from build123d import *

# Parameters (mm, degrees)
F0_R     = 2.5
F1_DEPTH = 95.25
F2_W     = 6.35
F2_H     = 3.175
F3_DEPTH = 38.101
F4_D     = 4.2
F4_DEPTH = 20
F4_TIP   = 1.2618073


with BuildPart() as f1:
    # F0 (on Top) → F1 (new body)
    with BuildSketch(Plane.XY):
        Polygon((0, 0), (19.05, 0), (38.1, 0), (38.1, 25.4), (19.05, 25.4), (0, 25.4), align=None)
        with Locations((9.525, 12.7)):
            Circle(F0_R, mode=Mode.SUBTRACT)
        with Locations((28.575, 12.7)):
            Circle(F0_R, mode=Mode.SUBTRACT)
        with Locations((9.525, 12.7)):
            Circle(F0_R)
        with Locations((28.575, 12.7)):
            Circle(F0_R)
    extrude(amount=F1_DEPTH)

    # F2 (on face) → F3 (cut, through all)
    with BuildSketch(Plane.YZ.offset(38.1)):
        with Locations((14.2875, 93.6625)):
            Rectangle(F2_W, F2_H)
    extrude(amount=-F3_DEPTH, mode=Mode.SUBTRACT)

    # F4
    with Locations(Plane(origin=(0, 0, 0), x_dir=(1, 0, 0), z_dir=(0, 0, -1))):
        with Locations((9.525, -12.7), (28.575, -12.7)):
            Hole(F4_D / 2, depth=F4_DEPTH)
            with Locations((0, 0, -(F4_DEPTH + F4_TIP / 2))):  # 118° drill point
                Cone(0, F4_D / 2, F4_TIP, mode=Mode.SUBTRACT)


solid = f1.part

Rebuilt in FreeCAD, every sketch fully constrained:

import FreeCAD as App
import Part
import Sketcher
Q = App.Units.Quantity

doc = App.newDocument("Part")
body = doc.addObject("PartDesign::Body", "Body")

sketch1 = body.newObject("Sketcher::SketchObject", "Sketch")
sketch1.AttachmentSupport = (doc.getObject("XY_Plane"), [""])
sketch1.MapMode = "FlatFace"
sketch1.addGeometry([
    Part.LineSegment(App.Vector(0, 0, 0), App.Vector(38, 0, 0)),
    Part.LineSegment(App.Vector(38, 0, 0), App.Vector(38, 25, 0)),
    Part.LineSegment(App.Vector(38, 25, 0), App.Vector(0, 25, 0)),
    Part.LineSegment(App.Vector(0, 25, 0), App.Vector(0, 0, 0)),
], False)
sketch1.addConstraint([
    Sketcher.Constraint("Coincident", 0, 2, 1, 1),
    Sketcher.Constraint("Coincident", 1, 2, 2, 1),
    Sketcher.Constraint("Coincident", 2, 2, 3, 1),
    Sketcher.Constraint("Coincident", 3, 2, 0, 1),
    Sketcher.Constraint("Horizontal", 0),
    Sketcher.Constraint("Vertical", 1),
    Sketcher.Constraint("Horizontal", 2),
    Sketcher.Constraint("Vertical", 3),
    Sketcher.Constraint("Coincident", 3, 2, -1, 1),
    Sketcher.Constraint("DistanceY", 1, 1, 1, 2, Q("1 in")),
    Sketcher.Constraint("DistanceX", 0, 1, 0, 2, Q("1.5 in")),
])
pad1 = body.newObject("PartDesign::Pad", "Pad")
pad1.Profile = sketch1
pad1.Length = Q("3.75 in")

sketch2 = body.newObject("Sketcher::SketchObject", "Sketch001")
sketch2.AttachmentSupport = (doc.getObject("YZ_Plane"), [""])
sketch2.MapMode = "FlatFace"
sketch2.AttachmentOffset = App.Placement(App.Vector(0, 0, 1.5 * 25.4), App.Rotation())
sketch2.addGeometry([
    Part.LineSegment(App.Vector(11.1, 95.2, 0), App.Vector(11.1, 92.1, 0)),
    Part.LineSegment(App.Vector(11.1, 92.1, 0), App.Vector(17.5, 92.1, 0)),
    Part.LineSegment(App.Vector(17.5, 92.1, 0), App.Vector(17.5, 95.2, 0)),
    Part.LineSegment(App.Vector(17.5, 95.2, 0), App.Vector(11.1, 95.2, 0)),
], False)
sketch2.addConstraint([
    Sketcher.Constraint("Coincident", 0, 2, 1, 1),
    Sketcher.Constraint("Coincident", 1, 2, 2, 1),
    Sketcher.Constraint("Coincident", 2, 2, 3, 1),
    Sketcher.Constraint("Coincident", 3, 2, 0, 1),
    Sketcher.Constraint("Vertical", 0),
    Sketcher.Constraint("Horizontal", 1),
    Sketcher.Constraint("Vertical", 2),
    Sketcher.Constraint("Horizontal", 3),
    Sketcher.Constraint("DistanceX", 1, 1, 1, 2, Q("0.25 in")),
    Sketcher.Constraint("DistanceY", 0, 2, 0, 1, Q("0.125 in")),
    Sketcher.Constraint("DistanceY", -1, 1, 2, 2, Q("3.75 in")),
    Sketcher.Constraint("DistanceX", -1, 1, 0, 2, Q("0.4375 in")),
])
pocket1 = body.newObject("PartDesign::Pocket", "Pocket")
pocket1.Profile = sketch2
pocket1.Type = "ThroughAll"

sketch3 = body.newObject("Sketcher::SketchObject", "Sketch002")
sketch3.AttachmentSupport = (doc.getObject("XY_Plane"), [""])
sketch3.MapMode = "FlatFace"
sketch3.addGeometry([
    Part.Circle(App.Vector(9.5, 12.7, 0), App.Vector(0, 0, 1), 2.1),
    Part.Circle(App.Vector(28.6, 12.7, 0), App.Vector(0, 0, 1), 2.1),
], False)
sketch3.addConstraint([
    Sketcher.Constraint("Equal", 0, 1),
    Sketcher.Constraint("Horizontal", 0, 3, 1, 3),
    Sketcher.Constraint("DistanceY", -1, 1, 0, 3, Q("0.5 in")),
    Sketcher.Constraint("Diameter", 0, 4.2),
    Sketcher.Constraint("DistanceX", 0, 3, 1, 3, Q("0.75 in")),
    Sketcher.Constraint("DistanceX", -1, 1, 0, 3, Q("0.375 in")),
])
doc.recompute()
hole = body.newObject("PartDesign::Hole", "Hole")
hole.Profile = sketch3
hole.ThreadType = "None"
hole.Diameter = 4.2
hole.DepthType = "Dimension"
hole.Depth = 20
hole.DrillPoint = "Angled"
hole.DrillPointAngle = 118
hole.Reversed = True

doc.recompute()
